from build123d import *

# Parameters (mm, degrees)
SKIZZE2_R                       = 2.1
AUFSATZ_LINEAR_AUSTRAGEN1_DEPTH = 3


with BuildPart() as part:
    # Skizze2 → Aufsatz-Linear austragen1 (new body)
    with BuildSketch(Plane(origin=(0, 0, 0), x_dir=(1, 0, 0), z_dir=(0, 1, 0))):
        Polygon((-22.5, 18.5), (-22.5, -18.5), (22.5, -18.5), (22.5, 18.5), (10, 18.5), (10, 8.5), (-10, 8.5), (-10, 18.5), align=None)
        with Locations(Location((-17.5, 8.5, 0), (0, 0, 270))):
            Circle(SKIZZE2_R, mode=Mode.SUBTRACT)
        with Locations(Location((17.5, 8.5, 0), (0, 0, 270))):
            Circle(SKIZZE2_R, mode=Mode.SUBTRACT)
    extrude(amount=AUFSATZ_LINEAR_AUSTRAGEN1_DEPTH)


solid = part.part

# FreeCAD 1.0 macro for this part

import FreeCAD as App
import Part
import Sketcher

V = App.Vector
Q = App.Units.Quantity


def add_polygon(sketch, points):
    """Adds a closed chain of lines whose ends are joined by coincident constraints."""
    first, n = sketch.GeometryCount, len(points)
    for a, b in zip(points, points[1:] + points[:1]):
        sketch.addGeometry(Part.LineSegment(App.Vector(*a, 0), App.Vector(*b, 0)), False)
    for i in range(n):
        sketch.addConstraint(Sketcher.Constraint("Coincident", first + i, 2, first + (i + 1) % n, 1))

doc = App.newDocument("Part")
body = doc.addObject("PartDesign::Body", "Body")

# Sketch on XZ plane
sketch1 = body.newObject("Sketcher::SketchObject", "Sketch")
sketch1.AttachmentSupport = (doc.getObject("XZ_Plane"), [""])
sketch1.MapMode = "FlatFace"
add_polygon(sketch1, [(-22.5, -18.5), (-22.5, 18.5), (22.5, 18.5), (22.5, -18.5), (10, -18.5), (10, -8.5), (-10, -8.5), (-10, -18.5)])  # lines 0-7
sketch1.addGeometry(Part.Circle(V(-17.5, -8.5, 0), V(0, 0, 1), 2.1), False)  # 8
sketch1.addGeometry(Part.Circle(V(17.5, -8.5, 0), V(0, 0, 1), 2.1), False)  # 9
sketch1.addConstraint(Sketcher.Constraint("Vertical", 0))
sketch1.addConstraint(Sketcher.Constraint("Horizontal", 1))
sketch1.addConstraint(Sketcher.Constraint("Vertical", 2))
sketch1.addConstraint(Sketcher.Constraint("Horizontal", 3))
sketch1.addConstraint(Sketcher.Constraint("Vertical", 4))
sketch1.addConstraint(Sketcher.Constraint("Horizontal", 5))
sketch1.addConstraint(Sketcher.Constraint("Vertical", 6))
sketch1.addConstraint(Sketcher.Constraint("Horizontal", 7))
sketch1.addConstraint(Sketcher.Constraint("Equal", 8, 9))
sketch1.addConstraint(Sketcher.Constraint("Symmetric", 0, 2, 2, 2, -1, 1))
sketch1.addConstraint(Sketcher.Constraint("Symmetric", 8, 3, 9, 3, -2))
sketch1.addConstraint(Sketcher.Constraint("Symmetric", 3, 2, 6, 2, -2))
sketch1.addConstraint(Sketcher.Constraint("Horizontal", 9, 3, 4, 2))
sketch1.addConstraint(Sketcher.Constraint("Diameter", 8, Q("4.2 mm")))
sketch1.addConstraint(Sketcher.Constraint("DistanceX", 1, 1, 1, 2, Q("45 mm")))
sketch1.addConstraint(Sketcher.Constraint("DistanceX", 5, 2, 5, 1, Q("20 mm")))
sketch1.addConstraint(Sketcher.Constraint("DistanceY", 0, 1, 0, 2, Q("37 mm")))
sketch1.addConstraint(Sketcher.Constraint("DistanceY", 4, 1, 4, 2, Q("10 mm")))
sketch1.addConstraint(Sketcher.Constraint("DistanceX", 8, 3, 9, 3, Q("35 mm")))
pad1 = body.newObject("PartDesign::Pad", "Pad")
pad1.Profile = sketch1
pad1.Length = 3
pad1.Reversed = True

doc.recompute()
